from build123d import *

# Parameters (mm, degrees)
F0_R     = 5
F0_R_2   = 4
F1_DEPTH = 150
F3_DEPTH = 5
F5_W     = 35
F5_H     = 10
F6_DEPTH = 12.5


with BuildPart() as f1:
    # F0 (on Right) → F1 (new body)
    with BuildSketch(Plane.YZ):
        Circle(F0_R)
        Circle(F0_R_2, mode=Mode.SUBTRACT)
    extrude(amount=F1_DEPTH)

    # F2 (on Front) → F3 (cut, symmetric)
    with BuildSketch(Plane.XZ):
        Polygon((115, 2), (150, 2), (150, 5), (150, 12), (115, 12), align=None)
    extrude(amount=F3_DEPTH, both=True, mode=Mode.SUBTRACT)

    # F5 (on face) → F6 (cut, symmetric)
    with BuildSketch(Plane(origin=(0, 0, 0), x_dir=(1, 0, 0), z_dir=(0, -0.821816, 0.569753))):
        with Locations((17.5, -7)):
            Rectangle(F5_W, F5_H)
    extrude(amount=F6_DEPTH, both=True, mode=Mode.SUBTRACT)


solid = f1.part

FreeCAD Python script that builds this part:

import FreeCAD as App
import Part
import Sketcher
from FreeCAD import Vector
Q = App.Units.Quantity

doc = App.newDocument("Part")
body = doc.addObject("PartDesign::Body", "Body")

# Sketch on YZ plane
sketch1 = doc.addObject("Sketcher::SketchObject", "Sketch")
body.addObject(sketch1)
sketch1.AttachmentSupport = (doc.YZ_Plane, [""])
sketch1.MapMode = "FlatFace"
sketch1.addGeometry(Part.Circle(Vector(0, 0, 0), Vector(0, 0, 1), 5), False)
sketch1.addGeometry(Part.Circle(Vector(0, 0, 0), Vector(0, 0, 1), 4), False)
sketch1.addConstraint(Sketcher.Constraint("Coincident", 0, 3, -1, 1))
sketch1.addConstraint(Sketcher.Constraint("Coincident", 1, 3, -1, 1))
sketch1.addConstraint(Sketcher.Constraint("Diameter", 0, Q("10 mm")))
sketch1.addConstraint(Sketcher.Constraint("Diameter", 1, Q("8 mm")))
pad1 = doc.addObject("PartDesign::Pad", "Pad")
body.addObject(pad1)
pad1.Profile = sketch1
pad1.Length = 150

# Sketch on XZ plane
sketch2 = doc.addObject("Sketcher::SketchObject", "Sketch001")
body.addObject(sketch2)
sketch2.AttachmentSupport = (doc.XZ_Plane, [""])
sketch2.MapMode = "FlatFace"
sketch2.addGeometry(Part.LineSegment(Vector(115, 2, 0), Vector(150, 2, 0)), False)
sketch2.addGeometry(Part.LineSegment(Vector(150, 2, 0), Vector(150, 12, 0)), False)
sketch2.addGeometry(Part.LineSegment(Vector(150, 12, 0), Vector(115, 12, 0)), False)
sketch2.addGeometry(Part.LineSegment(Vector(115, 12, 0), Vector(115, 2, 0)), False)
sketch2.addConstraint(Sketcher.Constraint("Coincident", 0, 2, 1, 1))
sketch2.addConstraint(Sketcher.Constraint("Coincident", 1, 2, 2, 1))
sketch2.addConstraint(Sketcher.Constraint("Coincident", 2, 2, 3, 1))
sketch2.addConstraint(Sketcher.Constraint("Coincident", 3, 2, 0, 1))
sketch2.addConstraint(Sketcher.Constraint("Horizontal", 0))
sketch2.addConstraint(Sketcher.Constraint("Vertical", 1))
sketch2.addConstraint(Sketcher.Constraint("Horizontal", 2))
sketch2.addConstraint(Sketcher.Constraint("Vertical", 3))
sketch2.addConstraint(Sketcher.Constraint("DistanceX", 0, 1, 0, 2, Q("35 mm")))
sketch2.addConstraint(Sketcher.Constraint("DistanceY", 1, 1, 1, 2, Q("10 mm")))
sketch2.addConstraint(Sketcher.Constraint("DistanceX", -1, 1, 0, 2, Q("150 mm")))
sketch2.addConstraint(Sketcher.Constraint("DistanceY", -1, 1, 0, 2, Q("2 mm")))
pocket1 = doc.addObject("PartDesign::Pocket", "Pocket")
body.addObject(pocket1)
pocket1.Profile = sketch2
pocket1.Length = 10
pocket1.Midplane = True

# Sketch on an angled plane
sketch3 = doc.addObject("Sketcher::SketchObject", "Sketch002")
body.addObject(sketch3)
sketch3.Placement = App.Placement(Vector(0, 0, 0), App.Rotation(Vector(1, 0, 0), Vector(0, 0.569752995, 0.821815992), Vector(0, -0.821815992, 0.569752995), "ZXY"))
sketch3.addGeometry(Part.LineSegment(Vector(0, -2, 0), Vector(0, -12, 0)), False)
sketch3.addGeometry(Part.LineSegment(Vector(0, -12, 0), Vector(35, -12, 0)), False)
sketch3.addGeometry(Part.LineSegment(Vector(35, -12, 0), Vector(35, -2, 0)), False)
sketch3.addGeometry(Part.LineSegment(Vector(35, -2, 0), Vector(0, -2, 0)), False)
sketch3.addConstraint(Sketcher.Constraint("Coincident", 0, 2, 1, 1))
sketch3.addConstraint(Sketcher.Constraint("Coincident", 1, 2, 2, 1))
sketch3.addConstraint(Sketcher.Constraint("Coincident", 2, 2, 3, 1))
sketch3.addConstraint(Sketcher.Constraint("Coincident", 3, 2, 0, 1))
sketch3.addConstraint(Sketcher.Constraint("Vertical", 0))
sketch3.addConstraint(Sketcher.Constraint("Horizontal", 1))
sketch3.addConstraint(Sketcher.Constraint("Vertical", 2))
sketch3.addConstraint(Sketcher.Constraint("Horizontal", 3))
sketch3.addConstraint(Sketcher.Constraint("PointOnObject", 0, 2, -2))
sketch3.addConstraint(Sketcher.Constraint("DistanceX", 1, 1, 1, 2, Q("35 mm")))
sketch3.addConstraint(Sketcher.Constraint("DistanceY", 0, 2, 0, 1, Q("10 mm")))
sketch3.addConstraint(Sketcher.Constraint("DistanceY", 0, 2, -1, 1, Q("12 mm")))
pocket2 = doc.addObject("PartDesign::Pocket", "Pocket001")
body.addObject(pocket2)
pocket2.Profile = sketch3
pocket2.Length = 25
pocket2.Midplane = True

doc.recompute()
